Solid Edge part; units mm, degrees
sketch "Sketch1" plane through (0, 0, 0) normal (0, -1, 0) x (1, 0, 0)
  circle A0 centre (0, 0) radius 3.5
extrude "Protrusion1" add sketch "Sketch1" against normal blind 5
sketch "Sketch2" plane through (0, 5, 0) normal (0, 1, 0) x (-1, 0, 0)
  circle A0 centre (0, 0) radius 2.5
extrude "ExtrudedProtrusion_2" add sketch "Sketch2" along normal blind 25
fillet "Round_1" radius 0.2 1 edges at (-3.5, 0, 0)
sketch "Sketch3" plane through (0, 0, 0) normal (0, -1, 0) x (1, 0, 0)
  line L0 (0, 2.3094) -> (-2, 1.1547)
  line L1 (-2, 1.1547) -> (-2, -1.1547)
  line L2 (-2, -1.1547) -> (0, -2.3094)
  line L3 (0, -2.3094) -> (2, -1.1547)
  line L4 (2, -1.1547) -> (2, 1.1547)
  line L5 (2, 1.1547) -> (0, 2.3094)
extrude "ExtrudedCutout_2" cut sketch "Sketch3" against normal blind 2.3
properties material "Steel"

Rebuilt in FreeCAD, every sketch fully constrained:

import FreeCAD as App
import Part
import Sketcher
from FreeCAD import Vector
Q = App.Units.Quantity


def edges_at(feature, points):
    """Names of the edges that pass closest to the given points."""
    edges = feature.Shape.Edges
    near = lambda p: min(range(len(edges)), key=lambda i: edges[i].distToShape(Part.Vertex(*p))[0])
    return sorted({f"Edge{near(p) + 1}" for p in points})

doc = App.newDocument("Part")
body = doc.addObject("PartDesign::Body", "Body")

# Sketch on XZ plane
sketch1 = body.newObject("Sketcher::SketchObject", "Sketch")
sketch1.AttachmentSupport = (doc.getObject("XZ_Plane"), [""])
sketch1.MapMode = "FlatFace"
sketch1.addGeometry(Part.Circle(Vector(0, 0, 0), Vector(0, 0, 1), 3.5), False)
sketch1.addConstraint(Sketcher.Constraint("Coincident", 0, 3, -1, 1))
sketch1.addConstraint(Sketcher.Constraint("Diameter", 0, Q("7 mm")))
pad1 = body.newObject("PartDesign::Pad", "Pad")
pad1.Profile = sketch1
pad1.Length = 5
pad1.Reversed = True

# Sketch on XZ plane
sketch2 = body.newObject("Sketcher::SketchObject", "Sketch001")
sketch2.AttachmentSupport = (doc.getObject("XZ_Plane"), [""])
sketch2.MapMode = "FlatFace"
sketch2.AttachmentOffset = App.Placement(Vector(0, 0, -5), App.Rotation())
sketch2.addGeometry(Part.Circle(Vector(0, 0, 0), Vector(0, 0, 1), 2.5), False)
sketch2.addConstraint(Sketcher.Constraint("Coincident", 0, 3, -1, 1))
sketch2.addConstraint(Sketcher.Constraint("Diameter", 0, Q("5 mm")))
pad2 = body.newObject("PartDesign::Pad", "Pad001")
pad2.Profile = sketch2
pad2.Length = 25
pad2.Reversed = True
doc.recompute()

fillet = body.newObject("PartDesign::Fillet", "Fillet")
fillet.Base = (pad2, edges_at(pad2, [(-3.5, 0, 0)]))
fillet.Radius = 0.2

# Sketch on XZ plane
sketch3 = body.newObject("Sketcher::SketchObject", "Sketch002")
sketch3.AttachmentSupport = (doc.getObject("XZ_Plane"), [""])
sketch3.MapMode = "FlatFace"
sketch3.addGeometry(Part.LineSegment(Vector(2, 1.2, 0), Vector(0, 2.3, 0)), False)
sketch3.addGeometry(Part.LineSegment(Vector(0, 2.3, 0), Vector(-2, 1.2, 0)), False)
sketch3.addGeometry(Part.LineSegment(Vector(-2, 1.2, 0), Vector(-2, -1.2, 0)), False)
sketch3.addGeometry(Part.LineSegment(Vector(-2, -1.2, 0), Vector(0, -2.3, 0)), False)
sketch3.addGeometry(Part.LineSegment(Vector(0, -2.3, 0), Vector(2, -1.2, 0)), False)
sketch3.addGeometry(Part.LineSegment(Vector(2, -1.2, 0), Vector(2, 1.2, 0)), False)
sketch3.addConstraint(Sketcher.Constraint("Coincident", 0, 2, 1, 1))
sketch3.addConstraint(Sketcher.Constraint("Coincident", 1, 2, 2, 1))
sketch3.addConstraint(Sketcher.Constraint("Coincident", 2, 2, 3, 1))
sketch3.addConstraint(Sketcher.Constraint("Coincident", 3, 2, 4, 1))
sketch3.addConstraint(Sketcher.Constraint("Coincident", 4, 2, 5, 1))
sketch3.addConstraint(Sketcher.Constraint("Coincident", 5, 2, 0, 1))
sketch3.addConstraint(Sketcher.Constraint("Vertical", 2))
sketch3.addConstraint(Sketcher.Constraint("Vertical", 5))
sketch3.addConstraint(Sketcher.Constraint("Symmetric", 0, 2, 3, 2, -1, 1))
sketch3.addConstraint(Sketcher.Constraint("Symmetric", 1, 2, 4, 2, -1, 1))
sketch3.addConstraint(Sketcher.Constraint("PointOnObject", 0, 2, -2))
sketch3.addConstraint(Sketcher.Constraint("Parallel", 0, 3))
sketch3.addConstraint(Sketcher.Constraint("Horizontal", 2, 2, 4, 2))
sketch3.addConstraint(Sketcher.Constraint("Angle", 0, Q("150 deg")))
sketch3.addConstraint(Sketcher.Constraint("DistanceX", 1, 2, -1, 1, Q("2 mm")))
sketch3.addConstraint(Sketcher.Constraint("DistanceY", 2, 2, 2, 1, Q("2.3094 mm")))
pocket1 = body.newObject("PartDesign::Pocket", "Pocket")
pocket1.Profile = sketch3
pocket1.Length = 2.3

doc.recompute()
